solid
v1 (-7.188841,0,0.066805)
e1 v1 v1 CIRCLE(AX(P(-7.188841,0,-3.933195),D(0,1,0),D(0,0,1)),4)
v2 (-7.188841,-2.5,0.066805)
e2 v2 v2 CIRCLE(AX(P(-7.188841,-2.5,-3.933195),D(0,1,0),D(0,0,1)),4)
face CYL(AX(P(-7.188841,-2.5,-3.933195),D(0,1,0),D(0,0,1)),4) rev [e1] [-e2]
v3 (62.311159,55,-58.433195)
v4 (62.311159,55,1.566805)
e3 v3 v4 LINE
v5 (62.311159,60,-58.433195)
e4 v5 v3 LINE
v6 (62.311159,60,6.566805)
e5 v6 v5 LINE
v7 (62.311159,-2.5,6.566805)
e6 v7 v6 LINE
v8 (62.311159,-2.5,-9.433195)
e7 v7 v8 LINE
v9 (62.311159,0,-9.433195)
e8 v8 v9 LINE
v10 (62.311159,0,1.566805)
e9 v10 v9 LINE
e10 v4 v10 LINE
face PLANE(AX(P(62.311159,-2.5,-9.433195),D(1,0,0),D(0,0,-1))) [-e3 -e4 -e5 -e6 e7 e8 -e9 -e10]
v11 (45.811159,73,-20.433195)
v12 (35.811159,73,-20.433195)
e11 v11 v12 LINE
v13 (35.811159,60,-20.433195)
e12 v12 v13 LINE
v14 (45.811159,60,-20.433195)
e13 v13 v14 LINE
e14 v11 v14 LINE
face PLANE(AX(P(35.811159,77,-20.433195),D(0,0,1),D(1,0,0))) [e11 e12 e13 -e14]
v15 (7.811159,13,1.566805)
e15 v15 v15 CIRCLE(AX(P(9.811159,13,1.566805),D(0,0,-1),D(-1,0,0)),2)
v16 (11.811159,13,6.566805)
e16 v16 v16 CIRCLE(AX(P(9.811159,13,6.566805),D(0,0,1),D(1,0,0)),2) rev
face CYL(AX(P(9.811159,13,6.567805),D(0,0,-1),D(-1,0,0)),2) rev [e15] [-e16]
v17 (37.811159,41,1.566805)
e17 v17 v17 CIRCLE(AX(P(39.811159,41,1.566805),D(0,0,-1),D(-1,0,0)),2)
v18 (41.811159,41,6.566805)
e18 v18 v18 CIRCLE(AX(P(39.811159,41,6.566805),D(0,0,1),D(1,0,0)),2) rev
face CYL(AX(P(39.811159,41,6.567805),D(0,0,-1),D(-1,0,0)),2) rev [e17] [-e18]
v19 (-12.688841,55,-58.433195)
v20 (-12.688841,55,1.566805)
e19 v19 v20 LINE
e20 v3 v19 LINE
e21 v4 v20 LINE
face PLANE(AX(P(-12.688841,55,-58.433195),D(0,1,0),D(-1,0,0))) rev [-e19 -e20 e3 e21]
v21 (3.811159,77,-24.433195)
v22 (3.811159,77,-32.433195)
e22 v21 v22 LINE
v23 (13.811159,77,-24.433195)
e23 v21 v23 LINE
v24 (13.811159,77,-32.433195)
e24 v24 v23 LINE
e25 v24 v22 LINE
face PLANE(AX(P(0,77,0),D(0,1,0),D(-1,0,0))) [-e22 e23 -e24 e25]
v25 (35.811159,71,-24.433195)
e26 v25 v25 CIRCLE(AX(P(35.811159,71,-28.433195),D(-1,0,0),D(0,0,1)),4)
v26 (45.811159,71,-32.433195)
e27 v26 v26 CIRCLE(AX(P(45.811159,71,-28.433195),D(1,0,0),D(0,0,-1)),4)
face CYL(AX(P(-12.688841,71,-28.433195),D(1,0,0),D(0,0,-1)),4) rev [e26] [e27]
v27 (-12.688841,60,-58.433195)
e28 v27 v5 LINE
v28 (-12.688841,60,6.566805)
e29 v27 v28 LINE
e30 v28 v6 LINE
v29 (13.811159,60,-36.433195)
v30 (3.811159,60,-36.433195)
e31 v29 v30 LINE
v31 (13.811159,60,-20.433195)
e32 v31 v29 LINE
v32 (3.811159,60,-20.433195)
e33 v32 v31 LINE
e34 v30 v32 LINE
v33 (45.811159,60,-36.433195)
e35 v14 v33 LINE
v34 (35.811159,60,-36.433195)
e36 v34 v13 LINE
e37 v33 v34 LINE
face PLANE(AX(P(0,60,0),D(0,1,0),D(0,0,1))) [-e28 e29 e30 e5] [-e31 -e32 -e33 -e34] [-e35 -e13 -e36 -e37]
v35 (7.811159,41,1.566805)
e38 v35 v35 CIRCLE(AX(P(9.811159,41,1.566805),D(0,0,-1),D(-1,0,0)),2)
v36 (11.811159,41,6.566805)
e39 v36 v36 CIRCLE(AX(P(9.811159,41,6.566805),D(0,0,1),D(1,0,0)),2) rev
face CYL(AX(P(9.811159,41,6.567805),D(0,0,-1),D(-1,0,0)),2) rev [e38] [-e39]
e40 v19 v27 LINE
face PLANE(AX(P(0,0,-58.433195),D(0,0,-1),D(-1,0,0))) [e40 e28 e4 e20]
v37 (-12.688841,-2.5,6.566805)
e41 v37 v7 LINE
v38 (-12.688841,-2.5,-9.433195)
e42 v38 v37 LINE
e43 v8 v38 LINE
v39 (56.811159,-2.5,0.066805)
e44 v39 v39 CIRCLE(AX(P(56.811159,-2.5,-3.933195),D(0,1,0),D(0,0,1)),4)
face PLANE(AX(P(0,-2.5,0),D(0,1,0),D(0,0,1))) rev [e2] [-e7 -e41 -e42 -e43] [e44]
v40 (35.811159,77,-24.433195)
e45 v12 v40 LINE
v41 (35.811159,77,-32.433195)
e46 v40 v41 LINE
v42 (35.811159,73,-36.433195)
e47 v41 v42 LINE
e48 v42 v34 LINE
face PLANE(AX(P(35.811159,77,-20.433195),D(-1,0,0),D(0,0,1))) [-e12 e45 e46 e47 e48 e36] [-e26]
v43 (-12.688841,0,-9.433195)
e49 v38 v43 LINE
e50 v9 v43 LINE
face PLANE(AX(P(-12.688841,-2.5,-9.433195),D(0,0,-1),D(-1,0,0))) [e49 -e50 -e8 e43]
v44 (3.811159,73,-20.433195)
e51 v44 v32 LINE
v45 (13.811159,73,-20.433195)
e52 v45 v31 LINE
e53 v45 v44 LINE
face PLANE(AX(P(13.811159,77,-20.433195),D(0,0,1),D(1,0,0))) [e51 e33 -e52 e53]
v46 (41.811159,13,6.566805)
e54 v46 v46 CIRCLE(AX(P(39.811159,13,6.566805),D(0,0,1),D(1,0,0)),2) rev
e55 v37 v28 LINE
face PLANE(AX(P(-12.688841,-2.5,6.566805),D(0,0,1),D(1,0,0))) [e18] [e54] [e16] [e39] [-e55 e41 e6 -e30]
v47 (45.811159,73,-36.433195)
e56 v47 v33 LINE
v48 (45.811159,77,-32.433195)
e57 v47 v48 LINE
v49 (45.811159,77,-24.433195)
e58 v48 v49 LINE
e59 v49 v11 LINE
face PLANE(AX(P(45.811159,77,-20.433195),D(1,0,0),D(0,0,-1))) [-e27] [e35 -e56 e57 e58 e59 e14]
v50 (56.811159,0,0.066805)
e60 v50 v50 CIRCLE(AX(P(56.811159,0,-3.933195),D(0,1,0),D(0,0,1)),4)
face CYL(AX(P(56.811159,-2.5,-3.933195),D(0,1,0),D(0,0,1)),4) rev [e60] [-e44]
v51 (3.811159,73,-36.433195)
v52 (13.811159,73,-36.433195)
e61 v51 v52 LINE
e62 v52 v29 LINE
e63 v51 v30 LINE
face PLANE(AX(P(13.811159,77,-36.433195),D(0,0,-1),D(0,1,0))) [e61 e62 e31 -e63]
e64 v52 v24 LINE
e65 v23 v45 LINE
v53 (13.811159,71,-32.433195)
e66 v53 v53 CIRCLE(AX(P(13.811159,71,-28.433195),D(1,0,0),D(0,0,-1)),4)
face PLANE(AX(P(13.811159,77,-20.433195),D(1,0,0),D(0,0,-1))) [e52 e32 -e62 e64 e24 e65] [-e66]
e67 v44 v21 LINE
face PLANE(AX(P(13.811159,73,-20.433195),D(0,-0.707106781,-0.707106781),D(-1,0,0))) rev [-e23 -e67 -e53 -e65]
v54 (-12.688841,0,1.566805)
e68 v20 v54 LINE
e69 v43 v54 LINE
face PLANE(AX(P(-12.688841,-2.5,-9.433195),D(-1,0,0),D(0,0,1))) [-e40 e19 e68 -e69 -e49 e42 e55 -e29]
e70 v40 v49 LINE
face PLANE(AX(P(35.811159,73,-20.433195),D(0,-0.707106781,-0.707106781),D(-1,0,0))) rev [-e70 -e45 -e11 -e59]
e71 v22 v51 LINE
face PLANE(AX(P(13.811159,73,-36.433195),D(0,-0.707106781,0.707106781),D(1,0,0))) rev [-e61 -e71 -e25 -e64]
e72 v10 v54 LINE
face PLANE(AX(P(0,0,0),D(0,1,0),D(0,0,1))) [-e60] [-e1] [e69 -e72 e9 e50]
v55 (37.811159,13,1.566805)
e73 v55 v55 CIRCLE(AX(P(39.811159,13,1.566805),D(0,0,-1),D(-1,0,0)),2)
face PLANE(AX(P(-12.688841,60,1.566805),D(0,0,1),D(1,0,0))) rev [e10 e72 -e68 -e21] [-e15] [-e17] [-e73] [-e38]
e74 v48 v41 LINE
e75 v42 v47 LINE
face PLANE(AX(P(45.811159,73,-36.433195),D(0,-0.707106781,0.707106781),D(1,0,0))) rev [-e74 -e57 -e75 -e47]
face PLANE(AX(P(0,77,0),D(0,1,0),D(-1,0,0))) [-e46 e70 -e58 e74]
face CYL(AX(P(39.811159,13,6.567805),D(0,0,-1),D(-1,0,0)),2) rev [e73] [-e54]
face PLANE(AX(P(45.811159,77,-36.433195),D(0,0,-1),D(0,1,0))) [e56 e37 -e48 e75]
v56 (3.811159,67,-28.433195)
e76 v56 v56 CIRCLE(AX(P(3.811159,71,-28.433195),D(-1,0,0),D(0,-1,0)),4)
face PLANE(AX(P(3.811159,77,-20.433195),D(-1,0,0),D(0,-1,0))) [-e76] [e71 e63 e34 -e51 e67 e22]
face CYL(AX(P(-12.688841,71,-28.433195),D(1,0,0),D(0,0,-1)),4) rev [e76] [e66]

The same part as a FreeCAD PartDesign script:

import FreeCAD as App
import Part
import Sketcher

V = App.Vector


def edges_at(feature, points):
    """Names of the edges that pass closest to the given points."""
    edges = feature.Shape.Edges
    near = lambda p: min(range(len(edges)), key=lambda i: edges[i].distToShape(Part.Vertex(*p))[0])
    return sorted({f"Edge{near(p) + 1}" for p in points})

doc = App.newDocument("Part")
body = doc.addObject("PartDesign::Body", "Body")

# Sketch on XZ plane
sketch1 = body.newObject("Sketcher::SketchObject", "Sketch")
sketch1.AttachmentSupport = (doc.getObject("XZ_Plane"), [""])
sketch1.MapMode = "FlatFace"
sketch1.addGeometry([
    Part.LineSegment(V(-12.7, -9.4, 0), V(-12.7, 6.6, 0)),  # 0
    Part.LineSegment(V(-12.7, 6.6, 0), V(62.3, 6.6, 0)),  # 1
    Part.LineSegment(V(62.3, 6.6, 0), V(62.3, -9.4, 0)),  # 2
    Part.LineSegment(V(62.3, -9.4, 0), V(-12.7, -9.4, 0)),  # 3
    Part.Circle(V(-7.2, -3.9, 0), V(0, 0, 1), 4),  # 4
    Part.Circle(V(56.8, -3.9, 0), V(0, 0, 1), 4),  # 5
], False)
sketch1.addConstraint([
    Sketcher.Constraint("Coincident", 0, 2, 1, 1),
    Sketcher.Constraint("Coincident", 1, 2, 2, 1),
    Sketcher.Constraint("Coincident", 2, 2, 3, 1),
    Sketcher.Constraint("Coincident", 3, 2, 0, 1),
    Sketcher.Constraint("Vertical", 0),
    Sketcher.Constraint("Horizontal", 1),
    Sketcher.Constraint("Vertical", 2),
    Sketcher.Constraint("Horizontal", 3),
    Sketcher.Constraint("Equal", 4, 5),
    Sketcher.Constraint("Horizontal", 4, 3, 5, 3),
    Sketcher.Constraint("Diameter", 4, 8.0),
    Sketcher.Constraint("DistanceX", 1, 1, 1, 2, 75.0),
    Sketcher.Constraint("DistanceY", 0, 1, 0, 2, 16.0),
    Sketcher.Constraint("DistanceX", 4, 3, 5, 3, 64.0),
    Sketcher.Constraint("DistanceX", 0, 2, 4, 3, 5.5),
    Sketcher.Constraint("DistanceY", 4, 3, 0, 2, 10.5),
    Sketcher.Constraint("DistanceX", 4, 3, -1, 1, 7.188841),
    Sketcher.Constraint("DistanceY", 4, 3, -1, 1, 3.933195),
])
pad1 = body.newObject("PartDesign::Pad", "Pad")
pad1.Profile = sketch1
pad1.Length = 2.5

# Sketch on XZ plane
sketch2 = body.newObject("Sketcher::SketchObject", "Sketch001")
sketch2.AttachmentSupport = (doc.getObject("XZ_Plane"), [""])
sketch2.MapMode = "FlatFace"
sketch2.addGeometry([
    Part.LineSegment(V(-13, 2, 0), V(-13, 7, 0)),
    Part.LineSegment(V(-13, 7, 0), V(62, 7, 0)),
    Part.LineSegment(V(62, 7, 0), V(62, 2, 0)),
    Part.LineSegment(V(62, 2, 0), V(-13, 2, 0)),
], False)
sketch2.addConstraint([
    Sketcher.Constraint("Coincident", 0, 2, 1, 1),
    Sketcher.Constraint("Coincident", 1, 2, 2, 1),
    Sketcher.Constraint("Coincident", 2, 2, 3, 1),
    Sketcher.Constraint("Coincident", 3, 2, 0, 1),
    Sketcher.Constraint("Vertical", 0),
    Sketcher.Constraint("Horizontal", 1),
    Sketcher.Constraint("Vertical", 2),
    Sketcher.Constraint("Horizontal", 3),
    Sketcher.Constraint("DistanceX", 1, 1, 1, 2, 75.0),
    Sketcher.Constraint("DistanceY", 0, 1, 0, 2, 5.0),
    Sketcher.Constraint("DistanceX", 0, 2, -1, 1, 12.688841),
    Sketcher.Constraint("DistanceY", -1, 1, 0, 2, 6.566805),
])
pad2 = body.newObject("PartDesign::Pad", "Pad001")
pad2.Profile = sketch2
pad2.Length = 60
pad2.Reversed = True

# Sketch on XY plane
sketch3 = body.newObject("Sketcher::SketchObject", "Sketch002")
sketch3.AttachmentSupport = (doc.getObject("XY_Plane"), [""])
sketch3.MapMode = "FlatFace"
sketch3.AttachmentOffset = App.Placement(V(0, 0, 1.566805), App.Rotation())
sketch3.addGeometry(Part.Circle(V(9.8, 13, 0), V(0, 0, 1), 2), False)
sketch3.addConstraint([
    Sketcher.Constraint("Diameter", 0, 4.0),
    Sketcher.Constraint("DistanceY", -1, 1, 0, 3, 13.0),
    Sketcher.Constraint("DistanceX", -1, 1, 0, 3, 9.811159),
])
pocket1 = body.newObject("PartDesign::Pocket", "Pocket")
pocket1.Profile = sketch3
pocket1.Type = "UpToFirst"
pocket1.Reversed = True

# Sketch on XY plane
sketch4 = body.newObject("Sketcher::SketchObject", "Sketch003")
sketch4.AttachmentSupport = (doc.getObject("XY_Plane"), [""])
sketch4.MapMode = "FlatFace"
sketch4.AttachmentOffset = App.Placement(V(0, 0, 1.566805), App.Rotation())
sketch4.addGeometry(Part.Circle(V(9.8, 41, 0), V(0, 0, 1), 2), False)
sketch4.addConstraint([
    Sketcher.Constraint("Diameter", 0, 4.0),
    Sketcher.Constraint("DistanceY", -1, 1, 0, 3, 41.0),
    Sketcher.Constraint("DistanceX", -1, 1, 0, 3, 9.811159),
])
pocket2 = body.newObject("PartDesign::Pocket", "Pocket001")
pocket2.Profile = sketch4
pocket2.Type = "UpToFirst"
pocket2.Reversed = True

# Sketch on XY plane
sketch5 = body.newObject("Sketcher::SketchObject", "Sketch004")
sketch5.AttachmentSupport = (doc.getObject("XY_Plane"), [""])
sketch5.MapMode = "FlatFace"
sketch5.AttachmentOffset = App.Placement(V(0, 0, 1.566805), App.Rotation())
sketch5.addGeometry(Part.Circle(V(39.8, 41, 0), V(0, 0, 1), 2), False)
sketch5.addConstraint([
    Sketcher.Constraint("Diameter", 0, 4.0),
    Sketcher.Constraint("DistanceY", -1, 1, 0, 3, 41.0),
    Sketcher.Constraint("DistanceX", -1, 1, 0, 3, 39.811159),
])
pocket3 = body.newObject("PartDesign::Pocket", "Pocket002")
pocket3.Profile = sketch5
pocket3.Type = "UpToFirst"
pocket3.Reversed = True

# Sketch on XY plane
sketch6 = body.newObject("Sketcher::SketchObject", "Sketch005")
sketch6.AttachmentSupport = (doc.getObject("XY_Plane"), [""])
sketch6.MapMode = "FlatFace"
sketch6.AttachmentOffset = App.Placement(V(0, 0, 1.566805), App.Rotation())
sketch6.addGeometry(Part.Circle(V(39.8, 13, 0), V(0, 0, 1), 2), False)
sketch6.addConstraint([
    Sketcher.Constraint("Diameter", 0, 4.0),
    Sketcher.Constraint("DistanceY", -1, 1, 0, 3, 13.0),
    Sketcher.Constraint("DistanceX", -1, 1, 0, 3, 39.811159),
])
pocket4 = body.newObject("PartDesign::Pocket", "Pocket003")
pocket4.Profile = sketch6
pocket4.Type = "UpToFirst"
pocket4.Reversed = True

# Sketch on XY plane
sketch7 = body.newObject("Sketcher::SketchObject", "Sketch006")
sketch7.AttachmentSupport = (doc.getObject("XY_Plane"), [""])
sketch7.MapMode = "FlatFace"
sketch7.AttachmentOffset = App.Placement(V(0, 0, 1.566805), App.Rotation())
sketch7.addGeometry([
    Part.LineSegment(V(62, 60, 0), V(62, 55, 0)),
    Part.LineSegment(V(62, 55, 0), V(-13, 55, 0)),
    Part.LineSegment(V(-13, 55, 0), V(-13, 60, 0)),
    Part.LineSegment(V(-13, 60, 0), V(62, 60, 0)),
], False)
sketch7.addConstraint([
    Sketcher.Constraint("Coincident", 0, 2, 1, 1),
    Sketcher.Constraint("Coincident", 1, 2, 2, 1),
    Sketcher.Constraint("Coincident", 2, 2, 3, 1),
    Sketcher.Constraint("Coincident", 3, 2, 0, 1),
    Sketcher.Constraint("Vertical", 0),
    Sketcher.Constraint("Horizontal", 1),
    Sketcher.Constraint("Vertical", 2),
    Sketcher.Constraint("Horizontal", 3),
    Sketcher.Constraint("DistanceX", 1, 2, 1, 1, 75.0),
    Sketcher.Constraint("DistanceY", 0, 2, 0, 1, 5.0),
    Sketcher.Constraint("DistanceY", -1, 1, 0, 2, 55.0),
    Sketcher.Constraint("DistanceX", -1, 1, 0, 2, 62.311159),
])
pad3 = body.newObject("PartDesign::Pad", "Pad002")
pad3.Profile = sketch7
pad3.Length = 60
pad3.Reversed = True

# Sketch on XZ plane
sketch8 = body.newObject("Sketcher::SketchObject", "Sketch007")
sketch8.AttachmentSupport = (doc.getObject("XZ_Plane"), [""])
sketch8.MapMode = "FlatFace"
sketch8.AttachmentOffset = App.Placement(V(0, 0, -55), App.Rotation())
sketch8.addGeometry([
    Part.LineSegment(V(36, -20, 0), V(36, -36, 0)),  # 0
    Part.LineSegment(V(36, -36, 0), V(46, -36, 0)),  # 1
    Part.LineSegment(V(46, -36, 0), V(46, -20, 0)),  # 2
    Part.LineSegment(V(46, -20, 0), V(36, -20, 0)),  # 3
    Part.LineSegment(V(4, -20, 0), V(4, -36, 0)),  # 4
    Part.LineSegment(V(4, -36, 0), V(14, -36, 0)),  # 5
    Part.LineSegment(V(14, -36, 0), V(14, -20, 0)),  # 6
    Part.LineSegment(V(14, -20, 0), V(4, -20, 0)),  # 7
], False)
sketch8.addConstraint([
    Sketcher.Constraint("Coincident", 0, 2, 1, 1),
    Sketcher.Constraint("Coincident", 1, 2, 2, 1),
    Sketcher.Constraint("Coincident", 2, 2, 3, 1),
    Sketcher.Constraint("Coincident", 3, 2, 0, 1),
    Sketcher.Constraint("Coincident", 4, 2, 5, 1),
    Sketcher.Constraint("Coincident", 5, 2, 6, 1),
    Sketcher.Constraint("Coincident", 6, 2, 7, 1),
    Sketcher.Constraint("Coincident", 7, 2, 4, 1),
    Sketcher.Constraint("Vertical", 0),
    Sketcher.Constraint("Horizontal", 1),
    Sketcher.Constraint("Vertical", 2),
    Sketcher.Constraint("Horizontal", 3),
    Sketcher.Constraint("Vertical", 4),
    Sketcher.Constraint("Horizontal", 5),
    Sketcher.Constraint("Vertical", 6),
    Sketcher.Constraint("Horizontal", 7),
    Sketcher.Constraint("Horizontal", 1, 2, 4, 2),
    Sketcher.Constraint("Horizontal", 3, 2, 6, 2),
    Sketcher.Constraint("Equal", 3, 5),
    Sketcher.Constraint("DistanceX", 1, 1, 1, 2, 10.0),
    Sketcher.Constraint("DistanceY", 0, 2, 0, 1, 16.0),
    Sketcher.Constraint("DistanceX", 4, 2, 0, 2, 32.0),
    Sketcher.Constraint("DistanceX", -1, 1, 0, 2, 35.811159),
    Sketcher.Constraint("DistanceY", 0, 2, -1, 1, 36.433195),
])
pad4 = body.newObject("PartDesign::Pad", "Pad003")
pad4.Profile = sketch8
pad4.Length = 22
pad4.Reversed = True

# Sketch on YZ plane
sketch9 = body.newObject("Sketcher::SketchObject", "Sketch008")
sketch9.AttachmentSupport = (doc.getObject("YZ_Plane"), [""])
sketch9.MapMode = "FlatFace"
sketch9.AttachmentOffset = App.Placement(V(0, 0, 45.811159), App.Rotation())
sketch9.addGeometry(Part.Circle(V(71, -28.4, 0), V(0, 0, 1), 4), False)
sketch9.addConstraint([
    Sketcher.Constraint("Diameter", 0, 8.0),
    Sketcher.Constraint("DistanceX", -1, 1, 0, 3, 71.0),
    Sketcher.Constraint("DistanceY", 0, 3, -1, 1, 28.433195),
])
pocket5 = body.newObject("PartDesign::Pocket", "Pocket004")
pocket5.Profile = sketch9
pocket5.Type = "ThroughAll"
pocket5.Midplane = True
doc.recompute()

chamfer = body.newObject("PartDesign::Chamfer", "Chamfer")
chamfer.Base = (pocket5, edges_at(pocket5, [
    (40.811, 77, -20.433),
    (40.811, 77, -36.433),
    (8.811, 77, -36.433),
    (8.811, 77, -20.433),
]))
chamfer.Size = 4

doc.recompute()
